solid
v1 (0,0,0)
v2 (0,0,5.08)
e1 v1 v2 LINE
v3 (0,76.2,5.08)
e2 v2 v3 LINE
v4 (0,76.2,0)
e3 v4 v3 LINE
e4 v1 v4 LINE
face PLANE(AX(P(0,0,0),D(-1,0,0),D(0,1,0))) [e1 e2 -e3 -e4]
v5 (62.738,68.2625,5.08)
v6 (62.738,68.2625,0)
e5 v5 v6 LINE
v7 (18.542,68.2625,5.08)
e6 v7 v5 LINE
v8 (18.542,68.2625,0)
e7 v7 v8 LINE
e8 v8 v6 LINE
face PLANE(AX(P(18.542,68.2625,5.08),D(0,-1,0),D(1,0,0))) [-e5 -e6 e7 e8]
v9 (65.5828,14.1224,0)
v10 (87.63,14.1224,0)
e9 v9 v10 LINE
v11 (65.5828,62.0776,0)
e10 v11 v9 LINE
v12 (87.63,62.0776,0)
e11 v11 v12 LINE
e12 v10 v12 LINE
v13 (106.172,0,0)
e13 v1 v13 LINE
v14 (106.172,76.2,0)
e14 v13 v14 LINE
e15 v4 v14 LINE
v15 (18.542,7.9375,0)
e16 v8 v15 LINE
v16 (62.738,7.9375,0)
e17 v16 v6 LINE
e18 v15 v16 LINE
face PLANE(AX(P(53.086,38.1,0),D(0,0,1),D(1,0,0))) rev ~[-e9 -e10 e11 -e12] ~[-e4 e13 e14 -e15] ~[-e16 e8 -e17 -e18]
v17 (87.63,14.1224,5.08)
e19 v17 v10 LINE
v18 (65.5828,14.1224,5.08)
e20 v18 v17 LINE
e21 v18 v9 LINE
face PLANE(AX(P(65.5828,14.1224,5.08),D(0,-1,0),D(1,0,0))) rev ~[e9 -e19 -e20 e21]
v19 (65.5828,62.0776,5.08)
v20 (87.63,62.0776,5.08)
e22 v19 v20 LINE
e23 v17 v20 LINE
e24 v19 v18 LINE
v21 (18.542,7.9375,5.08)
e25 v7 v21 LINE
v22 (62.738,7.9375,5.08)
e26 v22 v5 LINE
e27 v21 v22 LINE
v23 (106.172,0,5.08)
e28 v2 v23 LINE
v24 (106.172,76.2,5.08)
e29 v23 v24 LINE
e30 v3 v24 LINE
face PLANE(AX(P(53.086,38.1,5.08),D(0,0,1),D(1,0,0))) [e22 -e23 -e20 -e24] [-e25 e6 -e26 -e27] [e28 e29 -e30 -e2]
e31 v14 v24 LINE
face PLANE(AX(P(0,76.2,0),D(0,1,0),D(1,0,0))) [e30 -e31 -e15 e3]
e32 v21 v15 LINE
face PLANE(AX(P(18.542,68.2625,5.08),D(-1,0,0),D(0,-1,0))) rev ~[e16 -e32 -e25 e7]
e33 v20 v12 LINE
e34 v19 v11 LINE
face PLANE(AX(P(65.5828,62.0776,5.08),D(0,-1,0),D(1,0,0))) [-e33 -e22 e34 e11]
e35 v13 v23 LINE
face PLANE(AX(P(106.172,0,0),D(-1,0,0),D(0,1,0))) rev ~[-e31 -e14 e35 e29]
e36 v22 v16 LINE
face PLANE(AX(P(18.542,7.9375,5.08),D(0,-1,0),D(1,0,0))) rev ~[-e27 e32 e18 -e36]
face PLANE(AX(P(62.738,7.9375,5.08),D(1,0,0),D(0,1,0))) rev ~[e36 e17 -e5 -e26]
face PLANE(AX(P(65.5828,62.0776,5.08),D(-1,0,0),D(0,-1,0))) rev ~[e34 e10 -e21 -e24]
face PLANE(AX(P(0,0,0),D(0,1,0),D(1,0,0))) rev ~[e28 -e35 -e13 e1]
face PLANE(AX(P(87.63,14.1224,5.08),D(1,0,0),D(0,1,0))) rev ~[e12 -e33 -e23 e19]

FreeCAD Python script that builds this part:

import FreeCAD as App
import Part
import Sketcher

V = App.Vector
Q = App.Units.Quantity

doc = App.newDocument("Part")
body = doc.addObject("PartDesign::Body", "Body")

# Sketch on XY plane
sketch1 = body.newObject("Sketcher::SketchObject", "Sketch")
sketch1.AttachmentSupport = (doc.getObject("XY_Plane"), [""])
sketch1.MapMode = "FlatFace"
sketch1.addGeometry([
    Part.LineSegment(V(0, 76.2, 0), V(0, 0, 0)),
    Part.LineSegment(V(0, 0, 0), V(106.172, 0, 0)),
    Part.LineSegment(V(106.172, 0, 0), V(106.172, 76.2, 0)),
    Part.LineSegment(V(106.172, 76.2, 0), V(0, 76.2, 0)),
], False)
sketch1.addConstraint([
    Sketcher.Constraint("Coincident", 0, 2, 1, 1),
    Sketcher.Constraint("Coincident", 1, 2, 2, 1),
    Sketcher.Constraint("Coincident", 2, 2, 3, 1),
    Sketcher.Constraint("Coincident", 3, 2, 0, 1),
    Sketcher.Constraint("Vertical", 0),
    Sketcher.Constraint("Horizontal", 1),
    Sketcher.Constraint("Vertical", 2),
    Sketcher.Constraint("Horizontal", 3),
    Sketcher.Constraint("Coincident", 0, 2, -1, 1),
    Sketcher.Constraint("DistanceY", 0, 2, 0, 1, Q("3 in")),
    Sketcher.Constraint("DistanceX", 1, 1, 1, 2, Q("4.18 in")),
])
pad1 = body.newObject("PartDesign::Pad", "Pad")
pad1.Profile = sketch1
pad1.Length = Q("0.2 in")

# Sketch on XY plane
sketch2 = body.newObject("Sketcher::SketchObject", "Sketch001")
sketch2.AttachmentSupport = (doc.getObject("XY_Plane"), [""])
sketch2.MapMode = "FlatFace"
sketch2.AttachmentOffset = App.Placement(V(0, 0, 0.2 * 25.4), App.Rotation())
sketch2.addGeometry([
    Part.LineSegment(V(18.542, 68.2625, 0), V(18.542, 7.9375, 0)),  # 0
    Part.LineSegment(V(18.542, 7.9375, 0), V(62.738, 7.9375, 0)),  # 1
    Part.LineSegment(V(62.738, 7.9375, 0), V(62.738, 68.2625, 0)),  # 2
    Part.LineSegment(V(62.738, 68.2625, 0), V(18.542, 68.2625, 0)),  # 3
    Part.LineSegment(V(65.5828, 62.0776, 0), V(65.5828, 14.1224, 0)),  # 4
    Part.LineSegment(V(65.5828, 14.1224, 0), V(87.63, 14.1224, 0)),  # 5
    Part.LineSegment(V(87.63, 14.1224, 0), V(87.63, 62.0776, 0)),  # 6
    Part.LineSegment(V(87.63, 62.0776, 0), V(65.5828, 62.0776, 0)),  # 7
], False)
sketch2.addConstraint([
    Sketcher.Constraint("Coincident", 0, 2, 1, 1),
    Sketcher.Constraint("Coincident", 1, 2, 2, 1),
    Sketcher.Constraint("Coincident", 2, 2, 3, 1),
    Sketcher.Constraint("Coincident", 3, 2, 0, 1),
    Sketcher.Constraint("Coincident", 4, 2, 5, 1),
    Sketcher.Constraint("Coincident", 5, 2, 6, 1),
    Sketcher.Constraint("Coincident", 6, 2, 7, 1),
    Sketcher.Constraint("Coincident", 7, 2, 4, 1),
    Sketcher.Constraint("Vertical", 0),
    Sketcher.Constraint("Horizontal", 1),
    Sketcher.Constraint("Vertical", 2),
    Sketcher.Constraint("Horizontal", 3),
    Sketcher.Constraint("Vertical", 4),
    Sketcher.Constraint("Horizontal", 5),
    Sketcher.Constraint("Vertical", 6),
    Sketcher.Constraint("Horizontal", 7),
    Sketcher.Constraint("DistanceX", 1, 1, 1, 2, Q("1.74 in")),
    Sketcher.Constraint("DistanceX", 5, 1, 5, 2, Q("0.868 in")),
    Sketcher.Constraint("DistanceY", 0, 2, 0, 1, Q("2.375 in")),
    Sketcher.Constraint("DistanceY", 4, 2, 4, 1, Q("1.888 in")),
    Sketcher.Constraint("DistanceX", -1, 1, 0, 2, Q("0.73 in")),
    Sketcher.Constraint("DistanceX", -1, 1, 5, 2, Q("3.45 in")),
    Sketcher.Constraint("DistanceY", -1, 1, 0, 2, Q("0.3125 in")),
    Sketcher.Constraint("DistanceY", -1, 1, 4, 2, Q("0.556 in")),
])
pocket1 = body.newObject("PartDesign::Pocket", "Pocket")
pocket1.Profile = sketch2
pocket1.Length = Q("1 in")

doc.recompute()
